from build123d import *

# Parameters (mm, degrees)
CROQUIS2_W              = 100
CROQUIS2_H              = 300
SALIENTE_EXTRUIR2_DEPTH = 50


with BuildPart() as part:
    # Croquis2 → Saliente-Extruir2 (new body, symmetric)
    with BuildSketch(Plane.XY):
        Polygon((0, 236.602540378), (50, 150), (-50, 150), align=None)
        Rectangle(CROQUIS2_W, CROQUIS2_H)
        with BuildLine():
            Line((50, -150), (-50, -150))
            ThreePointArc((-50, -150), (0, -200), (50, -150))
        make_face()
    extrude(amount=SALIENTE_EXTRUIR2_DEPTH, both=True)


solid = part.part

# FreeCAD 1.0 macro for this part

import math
import FreeCAD as App
import Part
import Sketcher
Q = App.Units.Quantity

doc = App.newDocument("Part")
body = doc.addObject("PartDesign::Body", "Body")

# Sketch on XY plane
sketch1 = body.newObject("Sketcher::SketchObject", "Sketch")
sketch1.AttachmentSupport = (doc.getObject("XY_Plane"), [""])
sketch1.MapMode = "FlatFace"
sketch1.addGeometry([
    Part.LineSegment(App.Vector(50, 150, 0), App.Vector(0, 236.60254, 0)),  # 0
    Part.LineSegment(App.Vector(0, 236.60254, 0), App.Vector(-50, 150, 0)),  # 1
    Part.LineSegment(App.Vector(-50, 150, 0), App.Vector(-50, -150, 0)),  # 2
    Part.ArcOfCircle(Part.Circle(App.Vector(0, -150, 0), App.Vector(0, 0, 1), 50), math.radians(180), math.radians(360)),  # 3
    Part.LineSegment(App.Vector(50, -150, 0), App.Vector(50, 150, 0)),  # 4
], False)
sketch1.addConstraint([
    Sketcher.Constraint("Coincident", 0, 2, 1, 1),
    Sketcher.Constraint("Coincident", 1, 2, 2, 1),
    Sketcher.Constraint("Tangent", 2, 2, 3, 1),
    Sketcher.Constraint("Tangent", 3, 2, 4, 1),
    Sketcher.Constraint("Coincident", 4, 2, 0, 1),
    Sketcher.Constraint("Vertical", 2),
    Sketcher.Constraint("Vertical", 4),
    Sketcher.Constraint("Symmetric", 1, 2, 3, 2, -1, 1),
    Sketcher.Constraint("PointOnObject", 0, 2, -2),
    Sketcher.Constraint("Horizontal", 1, 2, 4, 2),
    Sketcher.Constraint("Radius", 3, 50.0),
    Sketcher.Constraint("DistanceY", 2, 2, 2, 1, 300.0),
    Sketcher.Constraint("Angle", 0, Q("120 deg")),
])
pad1 = body.newObject("PartDesign::Pad", "Pad")
pad1.Profile = sketch1
pad1.Length = 100
pad1.Midplane = True

doc.recompute()
